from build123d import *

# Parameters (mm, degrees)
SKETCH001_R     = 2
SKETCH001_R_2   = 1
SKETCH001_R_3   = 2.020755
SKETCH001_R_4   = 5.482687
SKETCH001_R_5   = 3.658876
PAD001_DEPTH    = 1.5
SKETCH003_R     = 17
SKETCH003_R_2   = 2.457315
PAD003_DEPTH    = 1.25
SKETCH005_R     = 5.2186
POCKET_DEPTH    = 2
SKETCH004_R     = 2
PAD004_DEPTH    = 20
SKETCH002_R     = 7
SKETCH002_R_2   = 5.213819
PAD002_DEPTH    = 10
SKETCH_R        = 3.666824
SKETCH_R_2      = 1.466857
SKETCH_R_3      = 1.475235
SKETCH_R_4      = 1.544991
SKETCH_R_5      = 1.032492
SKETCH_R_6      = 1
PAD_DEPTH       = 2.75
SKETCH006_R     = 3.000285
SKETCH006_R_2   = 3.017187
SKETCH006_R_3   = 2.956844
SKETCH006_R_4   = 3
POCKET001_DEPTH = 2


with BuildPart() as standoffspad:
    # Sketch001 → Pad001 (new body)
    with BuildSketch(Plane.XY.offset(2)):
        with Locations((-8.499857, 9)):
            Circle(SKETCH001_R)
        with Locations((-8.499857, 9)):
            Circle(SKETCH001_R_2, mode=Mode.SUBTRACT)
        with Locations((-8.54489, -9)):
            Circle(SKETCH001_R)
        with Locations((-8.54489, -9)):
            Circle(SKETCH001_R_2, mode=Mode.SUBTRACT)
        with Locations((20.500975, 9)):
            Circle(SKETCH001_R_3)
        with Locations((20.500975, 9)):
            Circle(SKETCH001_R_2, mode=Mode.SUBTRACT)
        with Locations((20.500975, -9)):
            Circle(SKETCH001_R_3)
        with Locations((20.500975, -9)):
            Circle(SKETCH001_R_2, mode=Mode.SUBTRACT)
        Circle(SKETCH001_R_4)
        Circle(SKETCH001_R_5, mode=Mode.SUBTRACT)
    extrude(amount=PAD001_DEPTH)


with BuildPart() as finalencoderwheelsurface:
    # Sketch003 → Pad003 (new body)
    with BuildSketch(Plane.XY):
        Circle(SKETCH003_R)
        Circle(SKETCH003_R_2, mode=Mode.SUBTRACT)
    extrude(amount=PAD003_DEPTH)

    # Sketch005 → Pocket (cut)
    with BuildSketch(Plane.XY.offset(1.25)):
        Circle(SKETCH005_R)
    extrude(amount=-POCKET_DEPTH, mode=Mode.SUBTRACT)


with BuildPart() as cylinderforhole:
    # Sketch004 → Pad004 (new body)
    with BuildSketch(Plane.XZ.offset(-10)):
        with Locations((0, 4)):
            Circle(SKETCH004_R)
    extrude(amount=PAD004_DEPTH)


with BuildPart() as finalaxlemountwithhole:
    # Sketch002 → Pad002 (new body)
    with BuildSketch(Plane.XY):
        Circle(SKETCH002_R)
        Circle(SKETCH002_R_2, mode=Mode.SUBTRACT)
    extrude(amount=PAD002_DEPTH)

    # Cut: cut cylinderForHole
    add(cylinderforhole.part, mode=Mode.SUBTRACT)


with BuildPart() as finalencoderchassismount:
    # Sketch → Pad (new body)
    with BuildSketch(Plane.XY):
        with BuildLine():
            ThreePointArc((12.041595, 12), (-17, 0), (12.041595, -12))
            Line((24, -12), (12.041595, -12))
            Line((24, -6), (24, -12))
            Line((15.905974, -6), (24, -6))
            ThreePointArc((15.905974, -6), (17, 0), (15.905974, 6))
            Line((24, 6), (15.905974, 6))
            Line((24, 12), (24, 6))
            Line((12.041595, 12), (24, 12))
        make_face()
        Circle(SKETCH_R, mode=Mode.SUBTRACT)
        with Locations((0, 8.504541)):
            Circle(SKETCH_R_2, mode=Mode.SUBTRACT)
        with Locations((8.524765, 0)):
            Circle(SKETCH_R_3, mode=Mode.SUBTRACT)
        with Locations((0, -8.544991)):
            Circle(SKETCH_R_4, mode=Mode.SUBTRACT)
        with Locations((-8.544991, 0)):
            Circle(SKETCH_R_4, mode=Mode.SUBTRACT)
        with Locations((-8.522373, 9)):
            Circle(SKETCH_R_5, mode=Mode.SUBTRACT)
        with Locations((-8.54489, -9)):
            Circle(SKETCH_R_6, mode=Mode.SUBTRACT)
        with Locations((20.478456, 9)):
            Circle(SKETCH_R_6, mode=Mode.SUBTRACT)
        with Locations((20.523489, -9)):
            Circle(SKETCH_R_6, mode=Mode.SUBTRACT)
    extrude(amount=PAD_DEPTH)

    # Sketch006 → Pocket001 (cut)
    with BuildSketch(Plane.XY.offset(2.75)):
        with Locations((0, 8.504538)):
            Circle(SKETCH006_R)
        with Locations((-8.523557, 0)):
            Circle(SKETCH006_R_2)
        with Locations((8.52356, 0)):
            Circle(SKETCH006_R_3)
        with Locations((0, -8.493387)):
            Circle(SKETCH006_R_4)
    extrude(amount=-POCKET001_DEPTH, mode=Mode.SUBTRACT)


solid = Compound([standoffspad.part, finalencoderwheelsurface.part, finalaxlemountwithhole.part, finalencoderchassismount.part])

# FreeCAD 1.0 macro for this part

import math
import FreeCAD as App
import Part
import Sketcher
from FreeCAD import Vector
Q = App.Units.Quantity

doc = App.newDocument("Part")
body = doc.addObject("PartDesign::Body", "Body")
body.AllowCompound = True

# Sketch on XY plane
sketch1 = doc.addObject("Sketcher::SketchObject", "Sketch")
body.addObject(sketch1)
sketch1.AttachmentSupport = (doc.XY_Plane, [""])
sketch1.MapMode = "FlatFace"
sketch1.AttachmentOffset = App.Placement(Vector(0, 0, 2), App.Rotation())
sketch1.addGeometry([
    Part.Circle(Vector(-8.499857, 9, 0), Vector(0, 0, 1), 2),  # 0
    Part.Circle(Vector(-8.499857, 9, 0), Vector(0, 0, 1), 1),  # 1
    Part.Circle(Vector(-8.54489, -9, 0), Vector(0, 0, 1), 2),  # 2
    Part.Circle(Vector(-8.54489, -9, 0), Vector(0, 0, 1), 1),  # 3
    Part.Circle(Vector(20.500975, 9, 0), Vector(0, 0, 1), 2.020755),  # 4
    Part.Circle(Vector(20.500975, 9, 0), Vector(0, 0, 1), 1),  # 5
    Part.Circle(Vector(20.500975, -9, 0), Vector(0, 0, 1), 2.020755),  # 6
    Part.Circle(Vector(20.500975, -9, 0), Vector(0, 0, 1), 1),  # 7
    Part.Circle(Vector(0, 0, 0), Vector(0, 0, 1), 5.482687),  # 8
    Part.Circle(Vector(0, 0, 0), Vector(0, 0, 1), 3.658876),  # 9
], False)
sketch1.addConstraint([
    Sketcher.Constraint("Coincident", 8, 3, -1, 1),
    Sketcher.Constraint("Coincident", 9, 3, -1, 1),
    Sketcher.Constraint("Coincident", 1, 3, 0, 3),
    Sketcher.Constraint("Coincident", 3, 3, 2, 3),
    Sketcher.Constraint("Coincident", 5, 3, 4, 3),
    Sketcher.Constraint("Coincident", 7, 3, 6, 3),
    Sketcher.Constraint("Equal", 0, 2),
    Sketcher.Constraint("Equal", 1, 3),
    Sketcher.Constraint("Equal", 3, 5),
    Sketcher.Constraint("Equal", 4, 6),
    Sketcher.Constraint("Equal", 5, 7),
    Sketcher.Constraint("Symmetric", 4, 3, 6, 3, -1),
    Sketcher.Constraint("Horizontal", 1, 3, 4, 3),
    Sketcher.Constraint("Horizontal", 3, 3, 6, 3),
    Sketcher.Constraint("Diameter", 0, Q("4 mm")),
    Sketcher.Constraint("Diameter", 1, Q("2 mm")),
    Sketcher.Constraint("DistanceY", -1, 1, 0, 3, Q("9 mm")),
    Sketcher.Constraint("Diameter", 4, Q("4.04151 mm")),
    Sketcher.Constraint("Diameter", 9, Q("7.317752 mm")),
    Sketcher.Constraint("Diameter", 8, Q("10.965374 mm")),
    Sketcher.Constraint("DistanceX", 2, 3, -1, 1, Q("8.54489 mm")),
    Sketcher.Constraint("DistanceX", 0, 3, -1, 1, Q("8.499857 mm")),
    Sketcher.Constraint("DistanceX", -1, 1, 4, 3, Q("20.500975 mm")),
])
pad1 = doc.addObject("PartDesign::Pad", "Pad")
body.addObject(pad1)
pad1.Profile = sketch1
pad1.Length = 1.5
body2 = doc.addObject("PartDesign::Body", "Body001")

# Sketch on XY plane
sketch2 = doc.addObject("Sketcher::SketchObject", "Sketch001")
body2.addObject(sketch2)
sketch2.AttachmentSupport = (doc.getObject("XY_Plane001"), [""])
sketch2.MapMode = "FlatFace"
sketch2.addGeometry([
    Part.Circle(Vector(0, 0, 0), Vector(0, 0, 1), 17),
    Part.Circle(Vector(0, 0, 0), Vector(0, 0, 1), 2.457315),
], False)
sketch2.addConstraint([
    Sketcher.Constraint("Coincident", 0, 3, -1, 1),
    Sketcher.Constraint("Coincident", 1, 3, -1, 1),
    Sketcher.Constraint("Diameter", 0, Q("34 mm")),
    Sketcher.Constraint("Diameter", 1, Q("4.91463 mm")),
])
pad2 = doc.addObject("PartDesign::Pad", "Pad001")
body2.addObject(pad2)
pad2.Profile = sketch2
pad2.Length = 1.25

# Sketch on XY plane
sketch3 = doc.addObject("Sketcher::SketchObject", "Sketch002")
body2.addObject(sketch3)
sketch3.AttachmentSupport = (doc.getObject("XY_Plane001"), [""])
sketch3.MapMode = "FlatFace"
sketch3.AttachmentOffset = App.Placement(Vector(0, 0, 1.25), App.Rotation())
sketch3.addGeometry(Part.Circle(Vector(0, 0, 0), Vector(0, 0, 1), 5.2186), False)
sketch3.addConstraint([
    Sketcher.Constraint("Coincident", 0, 3, -1, 1),
    Sketcher.Constraint("Diameter", 0, Q("10.4372 mm")),
])
pocket1 = doc.addObject("PartDesign::Pocket", "Pocket")
body2.addObject(pocket1)
pocket1.Profile = sketch3
pocket1.Length = 2
body3 = doc.addObject("PartDesign::Body", "Body002")

# Sketch on XZ plane
sketch4 = doc.addObject("Sketcher::SketchObject", "Sketch003")
body3.addObject(sketch4)
sketch4.AttachmentSupport = (doc.getObject("XZ_Plane002"), [""])
sketch4.MapMode = "FlatFace"
sketch4.AttachmentOffset = App.Placement(Vector(0, 0, -10), App.Rotation())
sketch4.addGeometry(Part.Circle(Vector(0, 4, 0), Vector(0, 0, 1), 2), False)
sketch4.addConstraint([
    Sketcher.Constraint("PointOnObject", 0, 3, -2),
    Sketcher.Constraint("Diameter", 0, Q("4 mm")),
    Sketcher.Constraint("DistanceY", -1, 1, 0, 3, Q("4 mm")),
])
pad3 = doc.addObject("PartDesign::Pad", "Pad002")
body3.addObject(pad3)
pad3.Profile = sketch4
pad3.Length = 20
body4 = doc.addObject("PartDesign::Body", "Body003")

# Sketch on XY plane
sketch5 = doc.addObject("Sketcher::SketchObject", "Sketch004")
body4.addObject(sketch5)
sketch5.AttachmentSupport = (doc.getObject("XY_Plane003"), [""])
sketch5.MapMode = "FlatFace"
sketch5.addGeometry([
    Part.Circle(Vector(0, 0, 0), Vector(0, 0, 1), 7),
    Part.Circle(Vector(0, 0, 0), Vector(0, 0, 1), 5.213819),
], False)
sketch5.addConstraint([
    Sketcher.Constraint("Coincident", 0, 3, -1, 1),
    Sketcher.Constraint("Coincident", 1, 3, -1, 1),
    Sketcher.Constraint("Diameter", 0, Q("14 mm")),
    Sketcher.Constraint("Diameter", 1, Q("10.427638 mm")),
])
pad4 = doc.addObject("PartDesign::Pad", "Pad003")
body4.addObject(pad4)
pad4.Profile = sketch5
pad4.Length = 10
doc.recompute()

boolean = doc.addObject("PartDesign::Boolean", "Boolean")
body4.addObject(boolean)
boolean.Type = "Cut"
boolean.addObjects([body3])
body5 = doc.addObject("PartDesign::Body", "Body004")

# Sketch on XY plane
sketch6 = doc.addObject("Sketcher::SketchObject", "Sketch005")
body5.addObject(sketch6)
sketch6.AttachmentSupport = (doc.getObject("XY_Plane004"), [""])
sketch6.MapMode = "FlatFace"
sketch6.addGeometry([
    Part.ArcOfCircle(Part.Circle(Vector(0, 0, 0), Vector(0, 0, 1), 17), math.radians(44.900872), math.radians(315.099128)),  # 0
    Part.LineSegment(Vector(12.041595, -12, 0), Vector(24, -12, 0)),  # 1
    Part.LineSegment(Vector(24, -12, 0), Vector(24, -6, 0)),  # 2
    Part.LineSegment(Vector(24, -6, 0), Vector(15.905974, -6, 0)),  # 3
    Part.ArcOfCircle(Part.Circle(Vector(-0.000004, 0, 0), Vector(0, 0, 1), 17.000004), math.radians(-20.667311), math.radians(20.667311)),  # 4
    Part.LineSegment(Vector(15.905974, 6, 0), Vector(24, 6, 0)),  # 5
    Part.LineSegment(Vector(24, 6, 0), Vector(24, 12, 0)),  # 6
    Part.LineSegment(Vector(24, 12, 0), Vector(12.041595, 12, 0)),  # 7
    Part.Circle(Vector(-8.54489, -9, 0), Vector(0, 0, 1), 1),  # 8
    Part.Circle(Vector(0, -8.544991, 0), Vector(0, 0, 1), 1.544991),  # 9
    Part.Circle(Vector(20.523489, -9, 0), Vector(0, 0, 1), 1),  # 10
    Part.Circle(Vector(-8.544991, 0, 0), Vector(0, 0, 1), 1.544991),  # 11
    Part.Circle(Vector(0, 0, 0), Vector(0, 0, 1), 3.666824),  # 12
    Part.Circle(Vector(-8.522373, 9, 0), Vector(0, 0, 1), 1.032492),  # 13
    Part.Circle(Vector(0, 8.504541, 0), Vector(0, 0, 1), 1.466857),  # 14
    Part.Circle(Vector(8.524765, 0, 0), Vector(0, 0, 1), 1.475235),  # 15
    Part.Circle(Vector(20.478456, 9, 0), Vector(0, 0, 1), 1),  # 16
], False)
sketch6.addConstraint([
    Sketcher.Constraint("Coincident", 0, 2, 1, 1),
    Sketcher.Constraint("Coincident", 1, 2, 2, 1),
    Sketcher.Constraint("Coincident", 2, 2, 3, 1),
    Sketcher.Constraint("Coincident", 3, 2, 4, 1),
    Sketcher.Constraint("Coincident", 4, 2, 5, 1),
    Sketcher.Constraint("Coincident", 5, 2, 6, 1),
    Sketcher.Constraint("Coincident", 6, 2, 7, 1),
    Sketcher.Constraint("Coincident", 7, 2, 0, 1),
    Sketcher.Constraint("Horizontal", 1),
    Sketcher.Constraint("Vertical", 2),
    Sketcher.Constraint("Horizontal", 3),
    Sketcher.Constraint("Horizontal", 5),
    Sketcher.Constraint("Vertical", 6),
    Sketcher.Constraint("Horizontal", 7),
    Sketcher.Constraint("Coincident", 0, 3, -1, 1),
    Sketcher.Constraint("Coincident", 4, 3, -1, 1),
    Sketcher.Constraint("Coincident", 12, 3, -1, 1),
    Sketcher.Constraint("Equal", 8, 10),
    Sketcher.Constraint("Equal", 9, 11),
    Sketcher.Constraint("Equal", 10, 16),
    Sketcher.Constraint("Symmetric", 2, 2, 5, 2, -1),
    Sketcher.Constraint("PointOnObject", 9, 3, -2),
    Sketcher.Constraint("PointOnObject", 11, 3, -1),
    Sketcher.Constraint("PointOnObject", 14, 3, -2),
    Sketcher.Constraint("PointOnObject", 15, 3, -1),
    Sketcher.Constraint("Horizontal", 8, 3, 10, 3),
    Sketcher.Constraint("Horizontal", 13, 3, 16, 3),
    Sketcher.Constraint("Vertical", 0, 2, 7, 2),
    Sketcher.Constraint("Diameter", 8, Q("2 mm")),
    Sketcher.Constraint("Radius", 0, Q("17 mm")),
    Sketcher.Constraint("DistanceY", 2, 1, 2, 2, Q("6 mm")),
    Sketcher.Constraint("DistanceY", 8, 3, -1, 1, Q("9 mm")),
    Sketcher.Constraint("DistanceY", -1, 1, 13, 3, Q("9 mm")),
    Sketcher.Constraint("DistanceY", 0, 2, -1, 1, Q("12 mm")),
    Sketcher.Constraint("DistanceX", -1, 1, 1, 2, Q("24 mm")),
    Sketcher.Constraint("Diameter", 9, Q("3.089982 mm")),
    Sketcher.Constraint("Diameter", 12, Q("7.333648 mm")),
    Sketcher.Constraint("Diameter", 15, Q("2.95047 mm")),
    Sketcher.Constraint("Diameter", 13, Q("2.064984 mm")),
    Sketcher.Constraint("Diameter", 14, Q("2.933714 mm")),
    Sketcher.Constraint("Radius", 4, Q("17.000004 mm")),
    Sketcher.Constraint("DistanceX", 11, 3, 8, 3, Q("0.000101 mm")),
    Sketcher.Constraint("DistanceX", 8, 3, -1, 1, Q("8.54489 mm")),
    Sketcher.Constraint("DistanceY", 9, 3, -1, 1, Q("8.544991 mm")),
    Sketcher.Constraint("DistanceX", -1, 1, 10, 3, Q("20.523489 mm")),
    Sketcher.Constraint("DistanceY", -1, 1, 14, 3, Q("8.504541 mm")),
    Sketcher.Constraint("DistanceX", 13, 3, 4, 3, Q("8.522369 mm")),
    Sketcher.Constraint("DistanceX", 4, 3, 15, 3, Q("8.524769 mm")),
    Sketcher.Constraint("DistanceX", 15, 3, 16, 3, Q("11.953691 mm")),
])
pad5 = doc.addObject("PartDesign::Pad", "Pad004")
body5.addObject(pad5)
pad5.Profile = sketch6
pad5.Length = 2.75

# Sketch on XY plane
sketch7 = doc.addObject("Sketcher::SketchObject", "Sketch006")
body5.addObject(sketch7)
sketch7.AttachmentSupport = (doc.getObject("XY_Plane004"), [""])
sketch7.MapMode = "FlatFace"
sketch7.AttachmentOffset = App.Placement(Vector(0, 0, 2.75), App.Rotation())
sketch7.addGeometry([
    Part.Circle(Vector(0, 8.504538, 0), Vector(0, 0, 1), 3.000285),
    Part.Circle(Vector(-8.523557, 0, 0), Vector(0, 0, 1), 3.017187),
    Part.Circle(Vector(8.52356, 0, 0), Vector(0, 0, 1), 2.956844),
    Part.Circle(Vector(0, -8.493387, 0), Vector(0, 0, 1), 3),
], False)
sketch7.addConstraint([
    Sketcher.Constraint("Symmetric", 1, 3, 2, 3, -1, 1),
    Sketcher.Constraint("PointOnObject", 0, 3, -2),
    Sketcher.Constraint("PointOnObject", 1, 3, -1),
    Sketcher.Constraint("PointOnObject", 3, 3, -2),
    Sketcher.Constraint("Diameter", 3, Q("6 mm")),
    Sketcher.Constraint("Diameter", 0, Q("6.00057 mm")),
    Sketcher.Constraint("Diameter", 1, Q("6.034374 mm")),
    Sketcher.Constraint("Diameter", 2, Q("5.913688 mm")),
    Sketcher.Constraint("DistanceX", -1, 1, 2, 3, Q("8.52356 mm")),
    Sketcher.Constraint("DistanceY", -1, 1, 0, 3, Q("8.504538 mm")),
    Sketcher.Constraint("DistanceY", 3, 3, -1, 1, Q("8.493387 mm")),
])
pocket2 = doc.addObject("PartDesign::Pocket", "Pocket001")
body5.addObject(pocket2)
pocket2.Profile = sketch7
pocket2.Length = 2

doc.recompute()
